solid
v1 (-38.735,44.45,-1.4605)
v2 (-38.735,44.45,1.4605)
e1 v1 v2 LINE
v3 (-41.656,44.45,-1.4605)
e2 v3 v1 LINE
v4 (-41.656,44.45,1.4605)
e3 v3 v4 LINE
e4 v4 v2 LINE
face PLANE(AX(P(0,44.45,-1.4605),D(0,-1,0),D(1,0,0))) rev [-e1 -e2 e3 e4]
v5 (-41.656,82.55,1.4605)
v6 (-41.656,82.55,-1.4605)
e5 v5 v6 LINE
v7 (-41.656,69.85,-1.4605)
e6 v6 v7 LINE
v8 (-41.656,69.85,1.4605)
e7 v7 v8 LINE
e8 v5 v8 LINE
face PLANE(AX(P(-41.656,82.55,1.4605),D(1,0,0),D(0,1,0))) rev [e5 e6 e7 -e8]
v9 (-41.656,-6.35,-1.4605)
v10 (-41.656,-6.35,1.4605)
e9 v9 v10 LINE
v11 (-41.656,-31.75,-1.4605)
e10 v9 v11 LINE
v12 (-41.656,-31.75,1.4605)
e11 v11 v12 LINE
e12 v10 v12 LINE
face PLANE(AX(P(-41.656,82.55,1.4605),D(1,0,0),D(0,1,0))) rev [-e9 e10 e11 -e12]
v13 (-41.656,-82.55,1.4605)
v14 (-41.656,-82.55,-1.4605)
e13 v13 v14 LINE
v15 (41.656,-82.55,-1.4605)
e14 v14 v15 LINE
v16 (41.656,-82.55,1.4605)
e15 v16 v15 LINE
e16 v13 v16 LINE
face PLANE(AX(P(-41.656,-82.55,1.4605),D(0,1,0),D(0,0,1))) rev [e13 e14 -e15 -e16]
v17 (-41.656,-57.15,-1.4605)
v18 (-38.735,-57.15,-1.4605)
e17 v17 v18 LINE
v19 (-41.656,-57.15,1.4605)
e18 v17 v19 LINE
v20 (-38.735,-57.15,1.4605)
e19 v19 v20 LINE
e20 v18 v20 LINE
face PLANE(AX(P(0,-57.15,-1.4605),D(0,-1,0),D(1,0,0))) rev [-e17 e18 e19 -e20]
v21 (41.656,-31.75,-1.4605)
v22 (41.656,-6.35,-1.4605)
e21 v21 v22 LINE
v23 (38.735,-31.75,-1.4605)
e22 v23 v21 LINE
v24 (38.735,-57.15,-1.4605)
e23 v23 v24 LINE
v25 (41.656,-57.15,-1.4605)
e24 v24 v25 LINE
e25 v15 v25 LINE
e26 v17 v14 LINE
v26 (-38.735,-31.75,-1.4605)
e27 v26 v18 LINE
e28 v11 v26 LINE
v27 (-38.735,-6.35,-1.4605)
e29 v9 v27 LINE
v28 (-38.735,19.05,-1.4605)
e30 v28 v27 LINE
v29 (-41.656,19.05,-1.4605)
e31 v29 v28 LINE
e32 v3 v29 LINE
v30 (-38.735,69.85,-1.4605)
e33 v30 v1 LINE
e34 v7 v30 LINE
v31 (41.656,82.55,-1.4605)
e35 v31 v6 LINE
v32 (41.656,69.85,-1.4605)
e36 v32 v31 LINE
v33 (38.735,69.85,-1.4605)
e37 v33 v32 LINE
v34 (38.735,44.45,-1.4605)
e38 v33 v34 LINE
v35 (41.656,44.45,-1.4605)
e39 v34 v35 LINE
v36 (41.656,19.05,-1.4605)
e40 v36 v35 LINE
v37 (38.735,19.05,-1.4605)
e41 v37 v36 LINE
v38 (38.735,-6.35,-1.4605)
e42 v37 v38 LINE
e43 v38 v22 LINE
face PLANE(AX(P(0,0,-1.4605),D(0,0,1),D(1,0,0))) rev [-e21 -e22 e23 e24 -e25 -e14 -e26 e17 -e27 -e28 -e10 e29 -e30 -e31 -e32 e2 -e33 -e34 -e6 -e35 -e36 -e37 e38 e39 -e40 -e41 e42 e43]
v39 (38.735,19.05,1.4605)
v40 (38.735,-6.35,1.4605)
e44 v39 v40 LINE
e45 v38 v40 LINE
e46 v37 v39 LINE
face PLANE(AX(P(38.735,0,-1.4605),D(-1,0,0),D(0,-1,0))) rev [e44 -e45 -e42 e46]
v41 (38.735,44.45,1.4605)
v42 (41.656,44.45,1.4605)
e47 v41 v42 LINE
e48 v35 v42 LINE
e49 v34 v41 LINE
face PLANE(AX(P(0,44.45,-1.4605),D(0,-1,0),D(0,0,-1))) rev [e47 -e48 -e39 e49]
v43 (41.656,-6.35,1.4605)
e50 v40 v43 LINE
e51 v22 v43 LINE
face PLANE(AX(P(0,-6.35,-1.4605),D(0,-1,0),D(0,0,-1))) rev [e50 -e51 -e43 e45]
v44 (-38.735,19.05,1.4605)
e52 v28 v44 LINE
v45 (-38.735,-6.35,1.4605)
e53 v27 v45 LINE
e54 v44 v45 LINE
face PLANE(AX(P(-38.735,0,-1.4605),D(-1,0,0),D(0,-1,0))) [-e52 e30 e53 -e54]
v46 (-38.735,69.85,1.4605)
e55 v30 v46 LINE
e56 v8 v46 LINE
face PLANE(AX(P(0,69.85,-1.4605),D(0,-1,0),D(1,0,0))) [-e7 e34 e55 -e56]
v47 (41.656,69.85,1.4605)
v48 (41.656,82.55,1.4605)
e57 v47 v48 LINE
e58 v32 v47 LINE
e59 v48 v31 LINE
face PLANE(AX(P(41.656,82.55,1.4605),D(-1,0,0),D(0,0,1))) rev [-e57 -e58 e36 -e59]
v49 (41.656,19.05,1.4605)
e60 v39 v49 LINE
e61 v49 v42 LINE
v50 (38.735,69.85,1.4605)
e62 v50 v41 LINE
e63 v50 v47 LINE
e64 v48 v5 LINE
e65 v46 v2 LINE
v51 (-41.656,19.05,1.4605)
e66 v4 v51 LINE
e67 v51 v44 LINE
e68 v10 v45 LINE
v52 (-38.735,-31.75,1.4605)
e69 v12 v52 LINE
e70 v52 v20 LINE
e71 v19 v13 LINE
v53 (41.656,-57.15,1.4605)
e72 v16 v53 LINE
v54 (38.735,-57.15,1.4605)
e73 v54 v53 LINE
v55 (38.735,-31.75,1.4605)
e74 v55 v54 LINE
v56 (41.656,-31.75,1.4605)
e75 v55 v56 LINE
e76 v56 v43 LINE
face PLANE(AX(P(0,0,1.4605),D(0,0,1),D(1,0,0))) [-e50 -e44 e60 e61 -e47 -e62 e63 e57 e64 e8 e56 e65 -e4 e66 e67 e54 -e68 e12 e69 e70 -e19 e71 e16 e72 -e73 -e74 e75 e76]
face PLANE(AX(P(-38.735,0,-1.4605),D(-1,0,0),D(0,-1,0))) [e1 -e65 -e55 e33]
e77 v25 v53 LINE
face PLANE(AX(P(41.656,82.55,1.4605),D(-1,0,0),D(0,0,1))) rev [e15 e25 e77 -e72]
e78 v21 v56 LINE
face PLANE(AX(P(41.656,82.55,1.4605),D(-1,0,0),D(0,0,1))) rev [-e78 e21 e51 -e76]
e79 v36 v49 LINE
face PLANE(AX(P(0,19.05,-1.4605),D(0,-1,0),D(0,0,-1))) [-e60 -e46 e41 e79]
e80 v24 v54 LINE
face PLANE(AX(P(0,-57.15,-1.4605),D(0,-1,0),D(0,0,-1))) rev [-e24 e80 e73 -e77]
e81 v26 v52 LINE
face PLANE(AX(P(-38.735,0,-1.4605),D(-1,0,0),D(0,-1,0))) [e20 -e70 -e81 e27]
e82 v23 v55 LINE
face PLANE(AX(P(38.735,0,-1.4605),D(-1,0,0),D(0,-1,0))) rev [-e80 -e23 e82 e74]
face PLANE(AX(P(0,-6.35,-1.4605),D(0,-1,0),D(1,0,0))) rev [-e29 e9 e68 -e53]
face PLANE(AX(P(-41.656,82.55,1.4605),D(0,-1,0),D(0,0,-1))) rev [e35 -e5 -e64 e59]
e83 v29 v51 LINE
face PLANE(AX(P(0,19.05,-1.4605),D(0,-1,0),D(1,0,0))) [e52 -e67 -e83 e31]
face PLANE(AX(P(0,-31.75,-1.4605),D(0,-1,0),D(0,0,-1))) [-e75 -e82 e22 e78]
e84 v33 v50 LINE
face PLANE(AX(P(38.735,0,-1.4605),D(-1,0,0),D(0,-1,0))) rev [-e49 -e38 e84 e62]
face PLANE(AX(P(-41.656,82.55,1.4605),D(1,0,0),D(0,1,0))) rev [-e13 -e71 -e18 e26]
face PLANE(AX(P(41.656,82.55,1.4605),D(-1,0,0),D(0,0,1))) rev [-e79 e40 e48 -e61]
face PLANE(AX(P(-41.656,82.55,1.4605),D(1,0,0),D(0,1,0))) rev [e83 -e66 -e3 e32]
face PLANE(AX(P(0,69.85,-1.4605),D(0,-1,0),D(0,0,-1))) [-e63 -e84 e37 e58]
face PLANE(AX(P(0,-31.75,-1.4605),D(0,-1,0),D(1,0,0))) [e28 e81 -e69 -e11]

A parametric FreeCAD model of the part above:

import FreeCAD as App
import Part
import Sketcher
Q = App.Units.Quantity

doc = App.newDocument("Part")
params = doc.addObject("Spreadsheet::Sheet", "Params")
for row, (alias, value) in enumerate([
    ("sketch1_height", "6.5 in"),
    ("sketch1_width", "3.28 in"),
    ("pad1_length", "0.115 in"),
    ("sketch2_height", "1 in"),
    ("sketch2_width", "0.115 in"),
    ("pocket1_length", "0.115 in"),
], start=1):
    params.set(f"A{row}", alias)
    params.set(f"B{row}", "=" + value)
    params.setAlias(f"B{row}", alias)

body = doc.addObject("PartDesign::Body", "Body")

# Sketch on XY plane
sketch1 = doc.addObject("Sketcher::SketchObject", "Sketch")
body.addObject(sketch1)
sketch1.AttachmentSupport = (doc.XY_Plane, [""])
sketch1.MapMode = "FlatFace"
sketch1.addGeometry([
    Part.LineSegment(App.Vector(-42, 83, 0), App.Vector(-42, -83, 0)),
    Part.LineSegment(App.Vector(-42, -83, 0), App.Vector(42, -83, 0)),
    Part.LineSegment(App.Vector(42, -83, 0), App.Vector(42, 83, 0)),
    Part.LineSegment(App.Vector(42, 83, 0), App.Vector(-42, 83, 0)),
], False)
sketch1.addConstraint([
    Sketcher.Constraint("Coincident", 0, 2, 1, 1),
    Sketcher.Constraint("Coincident", 1, 2, 2, 1),
    Sketcher.Constraint("Coincident", 2, 2, 3, 1),
    Sketcher.Constraint("Coincident", 3, 2, 0, 1),
    Sketcher.Constraint("Vertical", 0),
    Sketcher.Constraint("Horizontal", 1),
    Sketcher.Constraint("Vertical", 2),
    Sketcher.Constraint("Horizontal", 3),
    Sketcher.Constraint("Symmetric", 0, 2, 2, 2, -1, 1),
    Sketcher.Constraint("DistanceY", 0, 2, 0, 1, Q("6.5 in")),
    Sketcher.Constraint("DistanceX", 1, 1, 1, 2, Q("3.28 in")),
])
sketch1.setExpression("Constraints[9]", "Params.sketch1_height")
sketch1.setExpression("Constraints[10]", "Params.sketch1_width")
pad1 = doc.addObject("PartDesign::Pad", "Pad")
body.addObject(pad1)
pad1.Profile = sketch1
pad1.setExpression("Length", "Params.pad1_length")
pad1.Midplane = True

# Sketch on XY plane
sketch2 = doc.addObject("Sketcher::SketchObject", "Sketch001")
body.addObject(sketch2)
sketch2.AttachmentSupport = (doc.XY_Plane, [""])
sketch2.MapMode = "FlatFace"
sketch2.AttachmentOffset = App.Placement(App.Vector(0, 0, 0.0575 * 25.4), App.Rotation())
sketch2.addGeometry([
    Part.LineSegment(App.Vector(-41.7, 69.8, 0), App.Vector(-41.7, 44.5, 0)),  # 0
    Part.LineSegment(App.Vector(-41.7, 44.5, 0), App.Vector(-38.7, 44.5, 0)),  # 1
    Part.LineSegment(App.Vector(-38.7, 44.5, 0), App.Vector(-38.7, 69.8, 0)),  # 2
    Part.LineSegment(App.Vector(-38.7, 69.8, 0), App.Vector(-41.7, 69.8, 0)),  # 3
    Part.LineSegment(App.Vector(-41.7, 19.1, 0), App.Vector(-41.7, -6.3, 0)),  # 4
    Part.LineSegment(App.Vector(-41.7, -6.3, 0), App.Vector(-38.7, -6.3, 0)),  # 5
    Part.LineSegment(App.Vector(-38.7, -6.3, 0), App.Vector(-38.7, 19.1, 0)),  # 6
    Part.LineSegment(App.Vector(-38.7, 19.1, 0), App.Vector(-41.7, 19.1, 0)),  # 7
    Part.LineSegment(App.Vector(-41.7, -31.8, 0), App.Vector(-41.7, -57.1, 0)),  # 8
    Part.LineSegment(App.Vector(-41.7, -57.1, 0), App.Vector(-38.7, -57.1, 0)),  # 9
    Part.LineSegment(App.Vector(-38.7, -57.1, 0), App.Vector(-38.7, -31.8, 0)),  # 10
    Part.LineSegment(App.Vector(-38.7, -31.8, 0), App.Vector(-41.7, -31.8, 0)),  # 11
    Part.LineSegment(App.Vector(38.7, -31.8, 0), App.Vector(38.7, -57.1, 0)),  # 12
    Part.LineSegment(App.Vector(38.7, -57.1, 0), App.Vector(41.7, -57.1, 0)),  # 13
    Part.LineSegment(App.Vector(41.7, -57.1, 0), App.Vector(41.7, -31.8, 0)),  # 14
    Part.LineSegment(App.Vector(41.7, -31.8, 0), App.Vector(38.7, -31.8, 0)),  # 15
    Part.LineSegment(App.Vector(38.7, 19.1, 0), App.Vector(38.7, -6.3, 0)),  # 16
    Part.LineSegment(App.Vector(38.7, -6.3, 0), App.Vector(41.7, -6.3, 0)),  # 17
    Part.LineSegment(App.Vector(41.7, -6.3, 0), App.Vector(41.7, 19.1, 0)),  # 18
    Part.LineSegment(App.Vector(41.7, 19.1, 0), App.Vector(38.7, 19.1, 0)),  # 19
    Part.LineSegment(App.Vector(38.7, 69.8, 0), App.Vector(38.7, 44.5, 0)),  # 20
    Part.LineSegment(App.Vector(38.7, 44.5, 0), App.Vector(41.7, 44.5, 0)),  # 21
    Part.LineSegment(App.Vector(41.7, 44.5, 0), App.Vector(41.7, 69.8, 0)),  # 22
    Part.LineSegment(App.Vector(41.7, 69.8, 0), App.Vector(38.7, 69.8, 0)),  # 23
], False)
sketch2.addConstraint([
    Sketcher.Constraint("Coincident", 0, 2, 1, 1),
    Sketcher.Constraint("Coincident", 1, 2, 2, 1),
    Sketcher.Constraint("Coincident", 2, 2, 3, 1),
    Sketcher.Constraint("Coincident", 3, 2, 0, 1),
    Sketcher.Constraint("Coincident", 4, 2, 5, 1),
    Sketcher.Constraint("Coincident", 5, 2, 6, 1),
    Sketcher.Constraint("Coincident", 6, 2, 7, 1),
    Sketcher.Constraint("Coincident", 7, 2, 4, 1),
    Sketcher.Constraint("Coincident", 8, 2, 9, 1),
    Sketcher.Constraint("Coincident", 9, 2, 10, 1),
    Sketcher.Constraint("Coincident", 10, 2, 11, 1),
    Sketcher.Constraint("Coincident", 11, 2, 8, 1),
    Sketcher.Constraint("Coincident", 12, 2, 13, 1),
    Sketcher.Constraint("Coincident", 13, 2, 14, 1),
    Sketcher.Constraint("Coincident", 14, 2, 15, 1),
    Sketcher.Constraint("Coincident", 15, 2, 12, 1),
    Sketcher.Constraint("Coincident", 16, 2, 17, 1),
    Sketcher.Constraint("Coincident", 17, 2, 18, 1),
    Sketcher.Constraint("Coincident", 18, 2, 19, 1),
    Sketcher.Constraint("Coincident", 19, 2, 16, 1),
    Sketcher.Constraint("Coincident", 20, 2, 21, 1),
    Sketcher.Constraint("Coincident", 21, 2, 22, 1),
    Sketcher.Constraint("Coincident", 22, 2, 23, 1),
    Sketcher.Constraint("Coincident", 23, 2, 20, 1),
    Sketcher.Constraint("Vertical", 0),
    Sketcher.Constraint("Horizontal", 1),
    Sketcher.Constraint("Vertical", 2),
    Sketcher.Constraint("Horizontal", 3),
    Sketcher.Constraint("Vertical", 4),
    Sketcher.Constraint("Horizontal", 5),
    Sketcher.Constraint("Vertical", 6),
    Sketcher.Constraint("Horizontal", 7),
    Sketcher.Constraint("Vertical", 8),
    Sketcher.Constraint("Horizontal", 9),
    Sketcher.Constraint("Vertical", 10),
    Sketcher.Constraint("Horizontal", 11),
    Sketcher.Constraint("Vertical", 12),
    Sketcher.Constraint("Horizontal", 13),
    Sketcher.Constraint("Vertical", 14),
    Sketcher.Constraint("Horizontal", 15),
    Sketcher.Constraint("Vertical", 16),
    Sketcher.Constraint("Horizontal", 17),
    Sketcher.Constraint("Vertical", 18),
    Sketcher.Constraint("Horizontal", 19),
    Sketcher.Constraint("Vertical", 20),
    Sketcher.Constraint("Horizontal", 21),
    Sketcher.Constraint("Vertical", 22),
    Sketcher.Constraint("Horizontal", 23),
    Sketcher.Constraint("Symmetric", 9, 2, 12, 2, -2),
    Sketcher.Constraint("Symmetric", 11, 2, 14, 2, -2),
    Sketcher.Constraint("Symmetric", 5, 2, 16, 2, -2),
    Sketcher.Constraint("Symmetric", 7, 2, 18, 2, -2),
    Sketcher.Constraint("Symmetric", 1, 2, 20, 2, -2),
    Sketcher.Constraint("Symmetric", 3, 2, 22, 2, -2),
    Sketcher.Constraint("Vertical", 3, 2, 4, 2),
    Sketcher.Constraint("Vertical", 2, 2, 5, 2),
    Sketcher.Constraint("Vertical", 7, 2, 8, 2),
    Sketcher.Constraint("Vertical", 6, 2, 9, 2),
    Sketcher.Constraint("Equal", 2, 4),
    Sketcher.Constraint("Equal", 6, 8),
    Sketcher.Constraint("DistanceY", 0, 2, 0, 1, Q("1 in")),
    Sketcher.Constraint("DistanceY", 4, 2, 0, 2, Q("2 in")),
    Sketcher.Constraint("DistanceY", 8, 2, 4, 2, Q("2 in")),
    Sketcher.Constraint("DistanceX", 1, 1, 1, 2, Q("0.115 in")),
    Sketcher.Constraint("DistanceX", 0, 2, -1, 1, Q("1.64 in")),
    Sketcher.Constraint("DistanceY", -1, 1, 0, 2, Q("1.75 in")),
])
sketch2.setExpression("Constraints[60]", "Params.sketch2_height")
sketch2.setExpression("Constraints[63]", "Params.sketch2_width")
pocket1 = doc.addObject("PartDesign::Pocket", "Pocket")
body.addObject(pocket1)
pocket1.Profile = sketch2
pocket1.setExpression("Length", "Params.pocket1_length")

doc.recompute()
